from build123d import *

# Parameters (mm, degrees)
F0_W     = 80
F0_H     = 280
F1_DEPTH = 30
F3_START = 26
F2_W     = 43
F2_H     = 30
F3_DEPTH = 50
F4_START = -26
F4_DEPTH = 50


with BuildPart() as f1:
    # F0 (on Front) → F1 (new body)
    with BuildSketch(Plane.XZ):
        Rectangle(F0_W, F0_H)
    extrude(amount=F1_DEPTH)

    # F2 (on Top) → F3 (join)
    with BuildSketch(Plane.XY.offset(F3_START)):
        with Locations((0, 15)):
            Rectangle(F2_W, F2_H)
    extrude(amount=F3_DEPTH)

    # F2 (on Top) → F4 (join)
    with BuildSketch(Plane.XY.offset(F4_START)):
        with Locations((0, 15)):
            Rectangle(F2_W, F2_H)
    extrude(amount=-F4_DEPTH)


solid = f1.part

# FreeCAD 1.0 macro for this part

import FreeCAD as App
import Part
import Sketcher

V = App.Vector
Q = App.Units.Quantity


def add_polygon(sketch, points):
    """Adds a closed chain of lines whose ends are joined by coincident constraints."""
    first, n = sketch.GeometryCount, len(points)
    for a, b in zip(points, points[1:] + points[:1]):
        sketch.addGeometry(Part.LineSegment(App.Vector(*a, 0), App.Vector(*b, 0)), False)
    for i in range(n):
        sketch.addConstraint(Sketcher.Constraint("Coincident", first + i, 2, first + (i + 1) % n, 1))

doc = App.newDocument("Part")
body = doc.addObject("PartDesign::Body", "Body")

sketch1 = body.newObject("Sketcher::SketchObject", "Sketch")
sketch1.AttachmentSupport = (doc.getObject("XZ_Plane"), [""])
sketch1.MapMode = "FlatFace"
add_polygon(sketch1, [(-40, 140), (-40, -140), (40, -140), (40, 140)])
sketch1.addConstraint(Sketcher.Constraint("Vertical", 0))
sketch1.addConstraint(Sketcher.Constraint("Horizontal", 1))
sketch1.addConstraint(Sketcher.Constraint("Vertical", 2))
sketch1.addConstraint(Sketcher.Constraint("Horizontal", 3))
sketch1.addConstraint(Sketcher.Constraint("Symmetric", 0, 2, 2, 2, -1, 1))
sketch1.addConstraint(Sketcher.Constraint("DistanceX", 1, 1, 1, 2, Q("80 mm")))
sketch1.addConstraint(Sketcher.Constraint("DistanceY", 0, 2, 0, 1, Q("280 mm")))
pad1 = body.newObject("PartDesign::Pad", "Pad")
pad1.Profile = sketch1
pad1.Length = 30

sketch2 = body.newObject("Sketcher::SketchObject", "Sketch001")
sketch2.AttachmentSupport = (doc.getObject("XY_Plane"), [""])
sketch2.MapMode = "FlatFace"
sketch2.AttachmentOffset = App.Placement(V(0, 0, 26), App.Rotation())
add_polygon(sketch2, [(-22, 30), (-22, 0), (22, 0), (22, 30)])
sketch2.addConstraint(Sketcher.Constraint("Vertical", 0))
sketch2.addConstraint(Sketcher.Constraint("Horizontal", 1))
sketch2.addConstraint(Sketcher.Constraint("Vertical", 2))
sketch2.addConstraint(Sketcher.Constraint("Horizontal", 3))
sketch2.addConstraint(Sketcher.Constraint("Symmetric", 0, 2, 1, 2, -1, 1))
sketch2.addConstraint(Sketcher.Constraint("DistanceX", 1, 1, 1, 2, Q("43 mm")))
sketch2.addConstraint(Sketcher.Constraint("DistanceY", 0, 2, 0, 1, Q("30 mm")))
pad2 = body.newObject("PartDesign::Pad", "Pad001")
pad2.Profile = sketch2
pad2.Length = 50

sketch3 = body.newObject("Sketcher::SketchObject", "Sketch002")
sketch3.AttachmentSupport = (doc.getObject("XY_Plane"), [""])
sketch3.MapMode = "FlatFace"
sketch3.AttachmentOffset = App.Placement(V(0, 0, -26), App.Rotation())
add_polygon(sketch3, [(-22, 30), (-22, 0), (22, 0), (22, 30)])
sketch3.addConstraint(Sketcher.Constraint("Vertical", 0))
sketch3.addConstraint(Sketcher.Constraint("Horizontal", 1))
sketch3.addConstraint(Sketcher.Constraint("Vertical", 2))
sketch3.addConstraint(Sketcher.Constraint("Horizontal", 3))
sketch3.addConstraint(Sketcher.Constraint("Symmetric", 0, 2, 1, 2, -1, 1))
sketch3.addConstraint(Sketcher.Constraint("DistanceX", 1, 1, 1, 2, Q("43 mm")))
sketch3.addConstraint(Sketcher.Constraint("DistanceY", 0, 2, 0, 1, Q("30 mm")))
pad3 = body.newObject("PartDesign::Pad", "Pad002")
pad3.Profile = sketch3
pad3.Length = 50
pad3.Reversed = True

doc.recompute()
